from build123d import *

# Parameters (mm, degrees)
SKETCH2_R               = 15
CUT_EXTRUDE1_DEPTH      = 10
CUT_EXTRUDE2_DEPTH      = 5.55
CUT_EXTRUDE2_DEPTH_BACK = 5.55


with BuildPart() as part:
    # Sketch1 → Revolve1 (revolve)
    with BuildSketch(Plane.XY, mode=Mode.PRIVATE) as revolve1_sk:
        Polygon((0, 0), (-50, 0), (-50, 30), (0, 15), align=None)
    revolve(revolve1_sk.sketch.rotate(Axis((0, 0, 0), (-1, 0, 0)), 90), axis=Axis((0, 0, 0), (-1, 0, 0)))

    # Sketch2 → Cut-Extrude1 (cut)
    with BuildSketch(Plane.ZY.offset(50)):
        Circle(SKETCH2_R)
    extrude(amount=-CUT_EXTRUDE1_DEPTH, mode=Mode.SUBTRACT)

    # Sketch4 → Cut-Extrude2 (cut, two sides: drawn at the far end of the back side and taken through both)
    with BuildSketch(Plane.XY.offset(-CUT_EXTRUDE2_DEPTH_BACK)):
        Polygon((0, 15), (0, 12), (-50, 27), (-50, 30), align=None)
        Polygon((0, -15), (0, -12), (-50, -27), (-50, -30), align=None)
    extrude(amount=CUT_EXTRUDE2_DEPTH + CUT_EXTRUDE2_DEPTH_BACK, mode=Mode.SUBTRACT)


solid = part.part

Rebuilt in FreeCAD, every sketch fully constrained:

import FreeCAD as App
import Part
import Sketcher
Q = App.Units.Quantity


def add_polygon(sketch, points):
    """Adds a closed chain of lines whose ends are joined by coincident constraints."""
    first, n = sketch.GeometryCount, len(points)
    for a, b in zip(points, points[1:] + points[:1]):
        sketch.addGeometry(Part.LineSegment(App.Vector(*a, 0), App.Vector(*b, 0)), False)
    for i in range(n):
        sketch.addConstraint(Sketcher.Constraint("Coincident", first + i, 2, first + (i + 1) % n, 1))

doc = App.newDocument("Part")
params = doc.addObject("Spreadsheet::Sheet", "Params")
for row, (alias, value) in enumerate([
    ("sketch1_width", "50 mm"),
    ("sketch1_height", "15 mm"),
    ("sketch1_height2", "30 mm"),
    ("revolution_angle", "360 deg"),
    ("sketch2_diameter", "30 mm"),
    ("pocket1_length", "10 mm"),
    ("sketch3_height", "3 mm"),
    ("pocket2_length", "5.55 mm"),
    ("pocket2_length2", "5.55 mm"),
], start=1):
    params.set(f"A{row}", alias)
    params.set(f"B{row}", "=" + value)
    params.setAlias(f"B{row}", alias)

body = doc.addObject("PartDesign::Body", "Body")

sketch1 = body.newObject("Sketcher::SketchObject", "Sketch")
sketch1.AttachmentSupport = (doc.getObject("XY_Plane"), [""])
sketch1.MapMode = "FlatFace"
add_polygon(sketch1, [(-50, 0), (0, 0), (0, 15), (-50, 30)])
sketch1.addConstraint(Sketcher.Constraint("Horizontal", 0))
sketch1.addConstraint(Sketcher.Constraint("Vertical", 1))
sketch1.addConstraint(Sketcher.Constraint("Vertical", 3))
sketch1.addConstraint(Sketcher.Constraint("Coincident", 0, 2, -1, 1))
sketch1.addConstraint(Sketcher.Constraint("DistanceX", 0, 1, 0, 2, Q("50 mm")))
sketch1.addConstraint(Sketcher.Constraint("DistanceY", 1, 1, 1, 2, Q("15 mm")))
sketch1.addConstraint(Sketcher.Constraint("DistanceY", 3, 2, 3, 1, Q("30 mm")))
sketch1.setExpression("Constraints[8]", "Params.sketch1_width")
sketch1.setExpression("Constraints[9]", "Params.sketch1_height")
sketch1.setExpression("Constraints[10]", "Params.sketch1_height2")
revolution = body.newObject("PartDesign::Revolution", "Revolution")
revolution.Profile = sketch1
revolution.ReferenceAxis = (sketch1, ["H_Axis"])
revolution.setExpression("Angle", "Params.revolution_angle")

sketch2 = body.newObject("Sketcher::SketchObject", "Sketch001")
sketch2.AttachmentSupport = (doc.getObject("YZ_Plane"), [""])
sketch2.MapMode = "FlatFace"
sketch2.AttachmentOffset = App.Placement(App.Vector(0, 0, -50), App.Rotation())
sketch2.addGeometry(Part.Circle(App.Vector(0, 0, 0), App.Vector(0, 0, 1), 15), False)
sketch2.addConstraint(Sketcher.Constraint("Coincident", 0, 3, -1, 1))
sketch2.addConstraint(Sketcher.Constraint("Diameter", 0, Q("30 mm")))
sketch2.setExpression("Constraints[1]", "Params.sketch2_diameter")
pocket1 = body.newObject("PartDesign::Pocket", "Pocket")
pocket1.Profile = sketch2
pocket1.setExpression("Length", "Params.pocket1_length")
pocket1.Reversed = True

sketch3 = body.newObject("Sketcher::SketchObject", "Sketch002")
sketch3.AttachmentSupport = (doc.getObject("XY_Plane"), [""])
sketch3.MapMode = "FlatFace"
add_polygon(sketch3, [(0, 12), (0, 15), (-50, 30), (-50, 27)])
add_polygon(sketch3, [(0, -15), (0, -12), (-50, -27), (-50, -30)])
sketch3.addConstraint(Sketcher.Constraint("Vertical", 0))
sketch3.addConstraint(Sketcher.Constraint("Vertical", 2))
sketch3.addConstraint(Sketcher.Constraint("Vertical", 4))
sketch3.addConstraint(Sketcher.Constraint("Vertical", 6))
sketch3.addConstraint(Sketcher.Constraint("Symmetric", 3, 2, 4, 2, -1, 1))
sketch3.addConstraint(Sketcher.Constraint("Symmetric", 2, 2, 5, 2, -1))
sketch3.addConstraint(Sketcher.Constraint("Symmetric", 0, 2, 7, 2, -1))
sketch3.addConstraint(Sketcher.Constraint("Parallel", 1, 3))
sketch3.addConstraint(Sketcher.Constraint("Parallel", 5, 7))
sketch3.addConstraint(Sketcher.Constraint("DistanceY", 0, 1, 0, 2, Q("3 mm")))
sketch3.addConstraint(Sketcher.Constraint("DistanceY", -1, 1, 0, 2, Q("15 mm")))
sketch3.addConstraint(Sketcher.Constraint("DistanceX", 1, 2, -1, 1, Q("50 mm")))
sketch3.addConstraint(Sketcher.Constraint("DistanceY", -1, 1, 1, 2, Q("30 mm")))
sketch3.setExpression("Constraints[17]", "Params.sketch3_height")
pocket2 = body.newObject("PartDesign::Pocket", "Pocket001")
pocket2.Profile = sketch3
pocket2.Type = "TwoLengths"
pocket2.setExpression("Length", "Params.pocket2_length")
pocket2.setExpression("Length2", "Params.pocket2_length2")
pocket2.Reversed = True

doc.recompute()
